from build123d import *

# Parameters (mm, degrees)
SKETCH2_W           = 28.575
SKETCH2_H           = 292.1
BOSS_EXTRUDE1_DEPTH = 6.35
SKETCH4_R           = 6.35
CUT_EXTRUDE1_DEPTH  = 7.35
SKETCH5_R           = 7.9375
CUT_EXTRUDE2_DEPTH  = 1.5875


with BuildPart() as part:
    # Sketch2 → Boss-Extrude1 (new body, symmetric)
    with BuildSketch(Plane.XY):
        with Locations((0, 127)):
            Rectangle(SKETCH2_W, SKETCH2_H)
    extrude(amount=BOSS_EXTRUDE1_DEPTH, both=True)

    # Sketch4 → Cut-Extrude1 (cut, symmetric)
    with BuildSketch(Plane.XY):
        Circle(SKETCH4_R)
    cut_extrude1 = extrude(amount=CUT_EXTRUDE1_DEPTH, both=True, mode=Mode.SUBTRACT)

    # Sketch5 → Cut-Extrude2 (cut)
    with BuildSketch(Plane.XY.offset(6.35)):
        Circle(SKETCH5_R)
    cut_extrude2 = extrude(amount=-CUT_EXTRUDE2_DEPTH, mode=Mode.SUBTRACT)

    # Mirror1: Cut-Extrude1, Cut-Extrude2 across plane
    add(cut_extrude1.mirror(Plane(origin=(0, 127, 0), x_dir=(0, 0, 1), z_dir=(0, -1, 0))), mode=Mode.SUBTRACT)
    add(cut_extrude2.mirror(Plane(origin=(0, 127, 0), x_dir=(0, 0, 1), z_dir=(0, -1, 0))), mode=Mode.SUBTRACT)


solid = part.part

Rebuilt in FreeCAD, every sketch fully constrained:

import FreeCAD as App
import Part
import Sketcher
Q = App.Units.Quantity


def add_polygon(sketch, points):
    """Adds a closed chain of lines whose ends are joined by coincident constraints."""
    first, n = sketch.GeometryCount, len(points)
    for a, b in zip(points, points[1:] + points[:1]):
        sketch.addGeometry(Part.LineSegment(App.Vector(*a, 0), App.Vector(*b, 0)), False)
    for i in range(n):
        sketch.addConstraint(Sketcher.Constraint("Coincident", first + i, 2, first + (i + 1) % n, 1))

doc = App.newDocument("Part")
params = doc.addObject("Spreadsheet::Sheet", "Params")
for row, (alias, value) in enumerate([
    ("sketch1_height", "11.5 in"),
    ("sketch1_width", "1.125 in"),
    ("pad1_length", "0.5 in"),
    ("sketch2_diameter", "0.5 in"),
    ("pocket1_length", "14.7 mm"),
    ("sketch3_diameter", "0.625 in"),
    ("pocket2_length", "0.0625 in"),
], start=1):
    params.set(f"A{row}", alias)
    params.set(f"B{row}", "=" + value)
    params.setAlias(f"B{row}", alias)

body = doc.addObject("PartDesign::Body", "Body")

# Sketch on XY plane
sketch1 = body.newObject("Sketcher::SketchObject", "Sketch")
sketch1.AttachmentSupport = (doc.getObject("XY_Plane"), [""])
sketch1.MapMode = "FlatFace"
add_polygon(sketch1, [(-14.2875, 273.05), (-14.2875, -19.05), (14.2875, -19.05), (14.2875, 273.05)])  # lines 0-3
sketch1.addConstraint(Sketcher.Constraint("Vertical", 0))
sketch1.addConstraint(Sketcher.Constraint("Horizontal", 1))
sketch1.addConstraint(Sketcher.Constraint("Vertical", 2))
sketch1.addConstraint(Sketcher.Constraint("Horizontal", 3))
sketch1.addConstraint(Sketcher.Constraint("DistanceY", 0, 2, 0, 1, Q("11.5 in")))
sketch1.addConstraint(Sketcher.Constraint("DistanceX", 1, 1, 1, 2, Q("1.125 in")))
sketch1.addConstraint(Sketcher.Constraint("DistanceY", 0, 2, -1, 1, Q("0.75 in")))
sketch1.addConstraint(Sketcher.Constraint("DistanceX", 0, 2, -1, 1, Q("0.5625 in")))
sketch1.setExpression("Constraints[8]", "Params.sketch1_height")
sketch1.setExpression("Constraints[9]", "Params.sketch1_width")
pad1 = body.newObject("PartDesign::Pad", "Pad")
pad1.Profile = sketch1
pad1.setExpression("Length", "Params.pad1_length")
pad1.Midplane = True

# Sketch on XY plane
sketch2 = body.newObject("Sketcher::SketchObject", "Sketch001")
sketch2.AttachmentSupport = (doc.getObject("XY_Plane"), [""])
sketch2.MapMode = "FlatFace"
sketch2.addGeometry(Part.Circle(App.Vector(0, 0, 0), App.Vector(0, 0, 1), 6.35), False)
sketch2.addConstraint(Sketcher.Constraint("Coincident", 0, 3, -1, 1))
sketch2.addConstraint(Sketcher.Constraint("Diameter", 0, Q("0.5 in")))
sketch2.setExpression("Constraints[1]", "Params.sketch2_diameter")
pocket1 = body.newObject("PartDesign::Pocket", "Pocket")
pocket1.Profile = sketch2
pocket1.setExpression("Length", "Params.pocket1_length")
pocket1.Midplane = True

# Sketch on XY plane
sketch3 = body.newObject("Sketcher::SketchObject", "Sketch002")
sketch3.AttachmentSupport = (doc.getObject("XY_Plane"), [""])
sketch3.MapMode = "FlatFace"
sketch3.AttachmentOffset = App.Placement(App.Vector(0, 0, 0.25 * 25.4), App.Rotation())
sketch3.addGeometry(Part.Circle(App.Vector(0, 0, 0), App.Vector(0, 0, 1), 7.9375), False)
sketch3.addConstraint(Sketcher.Constraint("Coincident", 0, 3, -1, 1))
sketch3.addConstraint(Sketcher.Constraint("Diameter", 0, Q("0.625 in")))
sketch3.setExpression("Constraints[1]", "Params.sketch3_diameter")
pocket2 = body.newObject("PartDesign::Pocket", "Pocket001")
pocket2.Profile = sketch3
pocket2.setExpression("Length", "Params.pocket2_length")
doc.recompute()

datumplane = body.newObject("PartDesign::Plane", "DatumPlane")
datumplane.AttachmentSupport = (doc.getObject("XZ_Plane"), [""])
datumplane.MapMode = "FlatFace"
datumplane.AttachmentOffset = App.Placement(App.Vector(0, 0, -5 * 25.4), App.Rotation())
mirrored = body.newObject("PartDesign::Mirrored", "Mirrored")
mirrored.Originals = [pocket1, pocket2]
mirrored.MirrorPlane = (datumplane, [""])
body.Tip = mirrored

doc.recompute()
